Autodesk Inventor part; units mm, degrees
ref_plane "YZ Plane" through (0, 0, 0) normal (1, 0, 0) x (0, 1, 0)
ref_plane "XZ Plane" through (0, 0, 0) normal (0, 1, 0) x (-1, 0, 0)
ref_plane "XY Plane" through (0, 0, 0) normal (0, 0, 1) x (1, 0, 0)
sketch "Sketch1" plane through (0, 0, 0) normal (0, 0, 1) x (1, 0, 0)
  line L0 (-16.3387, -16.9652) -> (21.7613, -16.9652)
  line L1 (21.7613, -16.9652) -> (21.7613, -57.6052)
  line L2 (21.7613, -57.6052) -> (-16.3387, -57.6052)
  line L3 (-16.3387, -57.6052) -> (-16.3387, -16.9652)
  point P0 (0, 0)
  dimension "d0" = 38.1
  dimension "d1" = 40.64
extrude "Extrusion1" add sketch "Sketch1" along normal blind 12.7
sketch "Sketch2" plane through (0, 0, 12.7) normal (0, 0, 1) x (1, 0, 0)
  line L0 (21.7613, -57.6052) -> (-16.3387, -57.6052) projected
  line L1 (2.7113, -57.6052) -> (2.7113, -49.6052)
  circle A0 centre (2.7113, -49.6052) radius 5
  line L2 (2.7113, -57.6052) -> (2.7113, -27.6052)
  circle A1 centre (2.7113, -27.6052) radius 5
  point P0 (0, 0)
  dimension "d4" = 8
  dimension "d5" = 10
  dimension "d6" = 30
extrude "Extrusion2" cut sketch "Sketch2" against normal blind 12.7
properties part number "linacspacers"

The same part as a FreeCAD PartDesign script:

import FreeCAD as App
import Part
import Sketcher
from FreeCAD import Vector
Q = App.Units.Quantity

doc = App.newDocument("Part")
body = doc.addObject("PartDesign::Body", "Body")

# Sketch on XY plane
sketch1 = body.newObject("Sketcher::SketchObject", "Sketch")
sketch1.AttachmentSupport = (doc.getObject("XY_Plane"), [""])
sketch1.MapMode = "FlatFace"
sketch1.addGeometry([
    Part.LineSegment(Vector(22, -17, 0), Vector(-16, -17, 0)),
    Part.LineSegment(Vector(-16, -17, 0), Vector(-16, -58, 0)),
    Part.LineSegment(Vector(-16, -58, 0), Vector(22, -58, 0)),
    Part.LineSegment(Vector(22, -58, 0), Vector(22, -17, 0)),
], False)
sketch1.addConstraint([
    Sketcher.Constraint("Coincident", 0, 2, 1, 1),
    Sketcher.Constraint("Coincident", 1, 2, 2, 1),
    Sketcher.Constraint("Coincident", 2, 2, 3, 1),
    Sketcher.Constraint("Coincident", 3, 2, 0, 1),
    Sketcher.Constraint("Horizontal", 0),
    Sketcher.Constraint("Vertical", 1),
    Sketcher.Constraint("Horizontal", 2),
    Sketcher.Constraint("Vertical", 3),
    Sketcher.Constraint("DistanceX", 0, 2, 0, 1, Q("1.5 in")),
    Sketcher.Constraint("DistanceY", 1, 2, 1, 1, Q("1.6 in")),
    Sketcher.Constraint("DistanceX", 0, 2, -1, 1, Q("16.3387 mm")),
    Sketcher.Constraint("DistanceY", 0, 2, -1, 1, Q("16.9652 mm")),
])
pad1 = body.newObject("PartDesign::Pad", "Pad")
pad1.Profile = sketch1
pad1.Length = Q("0.5 in")

# Sketch on XY plane
sketch2 = body.newObject("Sketcher::SketchObject", "Sketch001")
sketch2.AttachmentSupport = (doc.getObject("XY_Plane"), [""])
sketch2.MapMode = "FlatFace"
sketch2.AttachmentOffset = App.Placement(Vector(0, 0, 0.5 * 25.4), App.Rotation())
sketch2.addGeometry([
    Part.Circle(Vector(3, -50, 0), Vector(0, 0, 1), 5),
    Part.Circle(Vector(3, -28, 0), Vector(0, 0, 1), 5),
], False)
sketch2.addConstraint([
    Sketcher.Constraint("Equal", 0, 1),
    Sketcher.Constraint("Vertical", 0, 3, 1, 3),
    Sketcher.Constraint("Diameter", 0, Q("0.3937 in")),
    Sketcher.Constraint("DistanceX", -1, 1, 0, 3, Q("2.7113 mm")),
    Sketcher.Constraint("DistanceY", 0, 3, -1, 1, Q("49.6052 mm")),
    Sketcher.Constraint("DistanceY", 1, 3, -1, 1, Q("27.6052 mm")),
])
pocket1 = body.newObject("PartDesign::Pocket", "Pocket")
pocket1.Profile = sketch2
pocket1.Length = Q("0.5 in")

doc.recompute()
